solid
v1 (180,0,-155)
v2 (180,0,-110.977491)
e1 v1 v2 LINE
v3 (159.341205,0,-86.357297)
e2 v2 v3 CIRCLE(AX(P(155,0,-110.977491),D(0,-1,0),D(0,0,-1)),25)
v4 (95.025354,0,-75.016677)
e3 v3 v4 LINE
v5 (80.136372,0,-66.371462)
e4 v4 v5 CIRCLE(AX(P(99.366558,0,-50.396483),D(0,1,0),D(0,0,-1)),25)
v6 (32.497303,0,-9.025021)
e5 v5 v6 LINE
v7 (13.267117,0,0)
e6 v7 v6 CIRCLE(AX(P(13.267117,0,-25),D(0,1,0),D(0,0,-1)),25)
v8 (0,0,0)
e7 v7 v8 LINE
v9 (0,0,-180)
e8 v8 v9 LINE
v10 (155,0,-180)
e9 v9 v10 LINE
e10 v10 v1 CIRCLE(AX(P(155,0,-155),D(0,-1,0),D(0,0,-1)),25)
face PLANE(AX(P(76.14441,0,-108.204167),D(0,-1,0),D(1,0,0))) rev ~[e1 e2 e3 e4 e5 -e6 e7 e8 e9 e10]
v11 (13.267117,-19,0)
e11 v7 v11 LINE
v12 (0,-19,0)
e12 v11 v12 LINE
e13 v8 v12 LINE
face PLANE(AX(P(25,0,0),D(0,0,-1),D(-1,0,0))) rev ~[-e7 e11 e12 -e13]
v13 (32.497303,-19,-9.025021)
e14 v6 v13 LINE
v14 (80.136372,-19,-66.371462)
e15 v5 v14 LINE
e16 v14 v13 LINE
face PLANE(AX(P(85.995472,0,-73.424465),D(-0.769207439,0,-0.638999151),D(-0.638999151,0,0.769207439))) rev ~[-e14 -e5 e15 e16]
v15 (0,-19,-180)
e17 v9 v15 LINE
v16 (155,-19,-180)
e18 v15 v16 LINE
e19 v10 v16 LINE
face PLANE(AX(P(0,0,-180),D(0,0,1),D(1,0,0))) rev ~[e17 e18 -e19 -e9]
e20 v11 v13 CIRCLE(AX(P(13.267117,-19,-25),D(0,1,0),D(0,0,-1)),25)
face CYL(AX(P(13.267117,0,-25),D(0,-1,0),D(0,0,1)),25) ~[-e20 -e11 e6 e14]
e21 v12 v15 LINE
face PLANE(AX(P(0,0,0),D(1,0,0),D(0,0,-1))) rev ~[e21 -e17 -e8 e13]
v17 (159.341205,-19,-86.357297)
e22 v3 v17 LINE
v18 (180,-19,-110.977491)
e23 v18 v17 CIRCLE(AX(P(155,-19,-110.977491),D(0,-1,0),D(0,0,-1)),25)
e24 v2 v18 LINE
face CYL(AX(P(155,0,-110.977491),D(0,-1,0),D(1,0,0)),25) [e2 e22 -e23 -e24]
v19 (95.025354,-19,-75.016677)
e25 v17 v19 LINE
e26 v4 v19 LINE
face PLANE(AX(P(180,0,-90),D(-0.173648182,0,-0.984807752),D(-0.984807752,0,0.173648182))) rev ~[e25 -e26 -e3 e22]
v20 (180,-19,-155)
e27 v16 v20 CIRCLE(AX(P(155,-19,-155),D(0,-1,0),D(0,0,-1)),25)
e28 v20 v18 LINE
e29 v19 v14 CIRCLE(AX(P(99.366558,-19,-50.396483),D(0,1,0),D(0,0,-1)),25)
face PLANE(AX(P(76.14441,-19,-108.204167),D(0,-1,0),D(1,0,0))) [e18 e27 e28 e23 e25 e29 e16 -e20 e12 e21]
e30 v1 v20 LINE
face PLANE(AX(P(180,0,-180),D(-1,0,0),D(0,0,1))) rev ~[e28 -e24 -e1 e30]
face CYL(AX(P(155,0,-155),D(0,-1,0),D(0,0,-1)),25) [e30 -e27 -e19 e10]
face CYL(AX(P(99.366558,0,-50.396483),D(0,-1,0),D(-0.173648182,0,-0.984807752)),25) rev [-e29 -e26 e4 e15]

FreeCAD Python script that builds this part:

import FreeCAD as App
import Part
import Sketcher
Q = App.Units.Quantity


def edges_at(feature, points):
    """Names of the edges that pass closest to the given points."""
    edges = feature.Shape.Edges
    near = lambda p: min(range(len(edges)), key=lambda i: edges[i].distToShape(Part.Vertex(*p))[0])
    return sorted({f"Edge{near(p) + 1}" for p in points})


def add_polygon(sketch, points):
    """Adds a closed chain of lines whose ends are joined by coincident constraints."""
    first, n = sketch.GeometryCount, len(points)
    for a, b in zip(points, points[1:] + points[:1]):
        sketch.addGeometry(Part.LineSegment(App.Vector(*a, 0), App.Vector(*b, 0)), False)
    for i in range(n):
        sketch.addConstraint(Sketcher.Constraint("Coincident", first + i, 2, first + (i + 1) % n, 1))

doc = App.newDocument("Part")
params = doc.addObject("Spreadsheet::Sheet", "Params")
for row, (alias, value) in enumerate([
    ("sketch1_width", "25 mm"),
    ("sketch1_width2", "180 mm"),
    ("sketch1_height", "90 mm"),
    ("pad1_length", "19 mm"),
    ("fillet_radius", "25 mm"),
], start=1):
    params.set(f"A{row}", alias)
    params.set(f"B{row}", "=" + value)
    params.setAlias(f"B{row}", alias)

body = doc.addObject("PartDesign::Body", "Body")

sketch1 = body.newObject("Sketcher::SketchObject", "Sketch")
sketch1.AttachmentSupport = (doc.getObject("XZ_Plane"), [""])
sketch1.MapMode = "FlatFace"
add_polygon(sketch1, [(25, 0), (0, 0), (0, -180), (180, -180), (180, -90), (86, -73)])
sketch1.addConstraint([
    Sketcher.Constraint("Horizontal", 0),
    Sketcher.Constraint("Vertical", 1),
    Sketcher.Constraint("Horizontal", 2),
    Sketcher.Constraint("Vertical", 3),
    Sketcher.Constraint("Coincident", 0, 2, -1, 1),
    Sketcher.Constraint("Equal", 2, 1),
    Sketcher.Constraint("Equal", 4, 5),
    Sketcher.Constraint("DistanceX", 0, 2, 0, 1, 25.0),
    Sketcher.Constraint("DistanceX", 2, 1, 2, 2, 180.0),
    Sketcher.Constraint("DistanceY", 3, 1, 3, 2, 90.0),
    Sketcher.Constraint("Angle", 4, Q("170 deg")),
])
sketch1.setExpression("Constraints[13]", "Params.sketch1_width")
sketch1.setExpression("Constraints[14]", "Params.sketch1_width2")
sketch1.setExpression("Constraints[15]", "Params.sketch1_height")
pad1 = body.newObject("PartDesign::Pad", "Pad")
pad1.Profile = sketch1
pad1.setExpression("Length", "Params.pad1_length")
doc.recompute()

fillet = body.newObject("PartDesign::Fillet", "Fillet")
fillet.Base = (pad1, edges_at(pad1, [
    (25, -9.5, 0),
    (85.995, -9.5, -73.424),
    (180, -9.5, -90),
    (180, -9.5, -180),
]))
fillet.setExpression("Radius", "Params.fillet_radius")

doc.recompute()
